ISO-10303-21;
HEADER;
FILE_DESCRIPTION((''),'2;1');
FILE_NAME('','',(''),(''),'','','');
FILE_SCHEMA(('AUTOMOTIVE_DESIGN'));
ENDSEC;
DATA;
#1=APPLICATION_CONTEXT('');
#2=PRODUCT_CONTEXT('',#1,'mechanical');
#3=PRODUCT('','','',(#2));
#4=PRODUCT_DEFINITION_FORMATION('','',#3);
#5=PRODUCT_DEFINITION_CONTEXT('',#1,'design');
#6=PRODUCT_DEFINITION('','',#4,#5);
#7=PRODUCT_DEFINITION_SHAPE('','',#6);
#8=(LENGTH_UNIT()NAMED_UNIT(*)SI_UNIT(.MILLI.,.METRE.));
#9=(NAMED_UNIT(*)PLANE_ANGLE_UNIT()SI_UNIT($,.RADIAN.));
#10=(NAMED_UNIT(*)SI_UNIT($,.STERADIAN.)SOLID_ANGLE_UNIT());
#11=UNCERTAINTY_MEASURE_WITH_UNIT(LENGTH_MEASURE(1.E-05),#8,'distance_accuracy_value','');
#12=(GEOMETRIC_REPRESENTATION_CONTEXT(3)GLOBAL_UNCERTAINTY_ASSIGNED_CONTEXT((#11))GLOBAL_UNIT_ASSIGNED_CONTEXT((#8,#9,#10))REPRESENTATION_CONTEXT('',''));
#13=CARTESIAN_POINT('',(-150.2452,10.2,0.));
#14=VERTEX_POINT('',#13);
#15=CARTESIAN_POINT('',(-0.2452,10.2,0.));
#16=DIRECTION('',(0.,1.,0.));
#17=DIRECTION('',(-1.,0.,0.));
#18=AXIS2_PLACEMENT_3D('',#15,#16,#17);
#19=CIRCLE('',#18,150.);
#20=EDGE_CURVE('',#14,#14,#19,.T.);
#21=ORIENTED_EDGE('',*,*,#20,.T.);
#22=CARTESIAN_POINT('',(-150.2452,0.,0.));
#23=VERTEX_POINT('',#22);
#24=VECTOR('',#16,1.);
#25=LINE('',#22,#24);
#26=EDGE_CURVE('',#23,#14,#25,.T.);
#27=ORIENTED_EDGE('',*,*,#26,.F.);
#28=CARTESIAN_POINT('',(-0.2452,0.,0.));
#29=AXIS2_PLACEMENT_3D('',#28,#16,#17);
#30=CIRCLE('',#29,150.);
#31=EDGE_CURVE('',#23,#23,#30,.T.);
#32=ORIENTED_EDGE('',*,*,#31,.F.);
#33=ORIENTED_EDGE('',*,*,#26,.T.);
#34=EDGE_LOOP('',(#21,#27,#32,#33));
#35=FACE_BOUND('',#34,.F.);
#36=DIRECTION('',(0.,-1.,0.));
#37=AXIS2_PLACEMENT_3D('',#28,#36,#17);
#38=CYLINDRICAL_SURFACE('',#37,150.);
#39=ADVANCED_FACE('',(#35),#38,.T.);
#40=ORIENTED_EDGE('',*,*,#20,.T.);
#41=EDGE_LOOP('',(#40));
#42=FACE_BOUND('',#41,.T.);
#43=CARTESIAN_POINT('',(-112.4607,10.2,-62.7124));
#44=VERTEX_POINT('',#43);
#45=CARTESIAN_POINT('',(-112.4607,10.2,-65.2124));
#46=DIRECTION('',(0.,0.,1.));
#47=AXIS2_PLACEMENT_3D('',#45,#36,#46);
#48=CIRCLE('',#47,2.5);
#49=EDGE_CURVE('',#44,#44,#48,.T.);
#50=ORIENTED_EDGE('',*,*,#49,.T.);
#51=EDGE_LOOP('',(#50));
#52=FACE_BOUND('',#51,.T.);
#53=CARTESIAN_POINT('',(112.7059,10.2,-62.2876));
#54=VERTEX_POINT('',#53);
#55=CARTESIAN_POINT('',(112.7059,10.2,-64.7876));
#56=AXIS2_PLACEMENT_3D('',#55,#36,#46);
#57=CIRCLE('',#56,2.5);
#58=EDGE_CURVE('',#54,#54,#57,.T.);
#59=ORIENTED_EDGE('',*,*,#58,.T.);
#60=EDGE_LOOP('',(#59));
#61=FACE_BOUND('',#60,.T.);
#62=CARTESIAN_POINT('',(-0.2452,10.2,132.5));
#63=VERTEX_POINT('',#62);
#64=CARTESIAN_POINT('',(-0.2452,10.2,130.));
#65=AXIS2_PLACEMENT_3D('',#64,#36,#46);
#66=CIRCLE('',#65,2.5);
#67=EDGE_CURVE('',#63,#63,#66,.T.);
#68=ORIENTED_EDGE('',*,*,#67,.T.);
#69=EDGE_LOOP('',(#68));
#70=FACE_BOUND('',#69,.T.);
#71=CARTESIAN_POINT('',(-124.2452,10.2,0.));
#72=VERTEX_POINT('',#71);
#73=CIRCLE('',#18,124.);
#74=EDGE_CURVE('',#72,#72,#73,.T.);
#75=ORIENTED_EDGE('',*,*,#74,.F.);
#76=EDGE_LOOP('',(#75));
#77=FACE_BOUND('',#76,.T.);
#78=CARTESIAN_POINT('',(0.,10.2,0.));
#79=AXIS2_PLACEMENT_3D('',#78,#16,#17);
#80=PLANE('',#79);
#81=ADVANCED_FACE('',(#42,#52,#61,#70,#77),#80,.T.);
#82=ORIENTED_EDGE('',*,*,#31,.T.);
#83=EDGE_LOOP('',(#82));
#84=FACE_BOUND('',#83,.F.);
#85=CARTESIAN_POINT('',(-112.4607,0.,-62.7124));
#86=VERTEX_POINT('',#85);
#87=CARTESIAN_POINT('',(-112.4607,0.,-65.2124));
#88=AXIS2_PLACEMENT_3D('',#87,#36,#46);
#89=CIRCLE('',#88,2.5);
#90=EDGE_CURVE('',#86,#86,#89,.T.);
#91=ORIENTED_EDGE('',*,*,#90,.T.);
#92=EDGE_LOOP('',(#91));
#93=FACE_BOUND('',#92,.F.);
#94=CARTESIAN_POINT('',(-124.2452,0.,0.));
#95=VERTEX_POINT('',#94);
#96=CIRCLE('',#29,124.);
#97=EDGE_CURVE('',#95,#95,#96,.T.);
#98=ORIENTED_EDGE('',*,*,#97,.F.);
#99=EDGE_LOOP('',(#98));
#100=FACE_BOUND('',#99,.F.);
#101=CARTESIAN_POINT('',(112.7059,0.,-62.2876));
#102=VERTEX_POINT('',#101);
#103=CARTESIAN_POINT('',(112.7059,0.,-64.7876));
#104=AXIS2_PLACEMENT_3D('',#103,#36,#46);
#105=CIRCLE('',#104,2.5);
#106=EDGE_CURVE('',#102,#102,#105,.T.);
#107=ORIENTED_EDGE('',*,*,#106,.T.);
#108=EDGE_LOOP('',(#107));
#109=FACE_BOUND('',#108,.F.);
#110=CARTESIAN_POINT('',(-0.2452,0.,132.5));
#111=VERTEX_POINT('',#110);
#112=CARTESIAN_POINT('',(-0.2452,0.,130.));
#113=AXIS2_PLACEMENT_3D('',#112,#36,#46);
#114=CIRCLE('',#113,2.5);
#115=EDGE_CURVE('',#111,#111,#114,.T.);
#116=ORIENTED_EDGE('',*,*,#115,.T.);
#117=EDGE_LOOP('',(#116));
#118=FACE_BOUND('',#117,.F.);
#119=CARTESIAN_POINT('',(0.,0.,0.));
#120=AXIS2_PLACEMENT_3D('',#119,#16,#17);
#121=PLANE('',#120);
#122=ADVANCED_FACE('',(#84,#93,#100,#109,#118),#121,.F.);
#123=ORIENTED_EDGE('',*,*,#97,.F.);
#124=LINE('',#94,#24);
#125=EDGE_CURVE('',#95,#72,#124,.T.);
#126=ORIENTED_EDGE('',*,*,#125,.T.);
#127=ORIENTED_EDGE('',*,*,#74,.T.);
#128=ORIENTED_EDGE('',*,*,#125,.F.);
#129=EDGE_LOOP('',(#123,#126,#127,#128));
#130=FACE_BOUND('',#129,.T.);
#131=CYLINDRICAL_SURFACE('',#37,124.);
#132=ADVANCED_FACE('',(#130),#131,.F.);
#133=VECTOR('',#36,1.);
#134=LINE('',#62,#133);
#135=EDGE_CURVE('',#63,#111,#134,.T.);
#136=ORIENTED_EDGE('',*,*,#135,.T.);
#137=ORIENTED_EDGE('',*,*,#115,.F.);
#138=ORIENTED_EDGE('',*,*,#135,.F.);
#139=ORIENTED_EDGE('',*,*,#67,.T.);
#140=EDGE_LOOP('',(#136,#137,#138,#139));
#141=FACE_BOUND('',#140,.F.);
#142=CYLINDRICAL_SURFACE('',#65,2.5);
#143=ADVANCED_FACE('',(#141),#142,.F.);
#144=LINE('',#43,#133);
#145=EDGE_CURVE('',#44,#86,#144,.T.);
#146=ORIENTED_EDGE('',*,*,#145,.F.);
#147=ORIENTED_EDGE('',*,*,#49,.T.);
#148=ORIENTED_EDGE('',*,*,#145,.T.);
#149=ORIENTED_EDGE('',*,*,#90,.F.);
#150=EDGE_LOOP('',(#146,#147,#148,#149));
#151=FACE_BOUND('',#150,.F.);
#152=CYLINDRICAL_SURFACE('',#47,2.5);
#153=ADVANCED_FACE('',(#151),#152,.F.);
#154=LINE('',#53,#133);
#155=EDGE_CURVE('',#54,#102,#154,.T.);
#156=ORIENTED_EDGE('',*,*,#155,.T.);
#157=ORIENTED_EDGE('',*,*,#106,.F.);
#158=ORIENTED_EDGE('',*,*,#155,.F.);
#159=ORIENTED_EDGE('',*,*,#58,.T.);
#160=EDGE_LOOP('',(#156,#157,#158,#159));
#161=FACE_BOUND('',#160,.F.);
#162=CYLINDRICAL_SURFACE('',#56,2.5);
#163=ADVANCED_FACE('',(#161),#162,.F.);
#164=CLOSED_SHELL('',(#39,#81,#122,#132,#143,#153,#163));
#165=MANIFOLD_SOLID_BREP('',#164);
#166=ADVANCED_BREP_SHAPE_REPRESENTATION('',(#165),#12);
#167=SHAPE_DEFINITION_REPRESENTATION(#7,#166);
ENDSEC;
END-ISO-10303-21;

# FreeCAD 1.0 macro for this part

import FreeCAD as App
import Part
import Sketcher
from FreeCAD import Vector

doc = App.newDocument("Part")
params = doc.addObject("Spreadsheet::Sheet", "Params")
for row, (alias, value) in enumerate([
    ("sketch1_diameter", "300 mm"),
    ("sketch1_diameter2", "248 mm"),
    ("pad1_length", "10.2 mm"),
    ("sketch2_diameter", "5 mm"),
    ("hole_diameter", "5 mm"),
], start=1):
    params.set(f"A{row}", alias)
    params.set(f"B{row}", "=" + value)
    params.setAlias(f"B{row}", alias)

body = doc.addObject("PartDesign::Body", "Body")

sketch1 = body.newObject("Sketcher::SketchObject", "Sketch")
sketch1.AttachmentSupport = (doc.getObject("XZ_Plane"), [""])
sketch1.MapMode = "FlatFace"
sketch1.addGeometry(Part.Circle(Vector(0, 0, 0), Vector(0, 0, 1), 150), False)
sketch1.addGeometry(Part.Circle(Vector(0, 0, 0), Vector(0, 0, 1), 124), False)
sketch1.addConstraint(Sketcher.Constraint("Coincident", 1, 3, 0, 3))
sketch1.addConstraint(Sketcher.Constraint("PointOnObject", 0, 3, -1))
sketch1.addConstraint(Sketcher.Constraint("Diameter", 0, 300.0))
sketch1.addConstraint(Sketcher.Constraint("Diameter", 1, 248.0))
sketch1.addConstraint(Sketcher.Constraint("DistanceX", 0, 3, -1, 1, 0.2452))
sketch1.setExpression("Constraints[2]", "Params.sketch1_diameter")
sketch1.setExpression("Constraints[3]", "Params.sketch1_diameter2")
pad1 = body.newObject("PartDesign::Pad", "Pad")
pad1.Profile = sketch1
pad1.setExpression("Length", "Params.pad1_length")
pad1.Reversed = True

sketch2 = body.newObject("Sketcher::SketchObject", "Sketch001")
sketch2.AttachmentSupport = (doc.getObject("XZ_Plane"), [""])
sketch2.MapMode = "FlatFace"
sketch2.AttachmentOffset = App.Placement(Vector(0, 0, -10.2), App.Rotation())
sketch2.addGeometry(Part.Circle(Vector(-0.2, 130, 0), Vector(0, 0, 1), 2.5), False)
sketch2.addGeometry(Part.Circle(Vector(112.7, -64.8, 0), Vector(0, 0, 1), 2.5), False)
sketch2.addGeometry(Part.Circle(Vector(-112.5, -65.2, 0), Vector(0, 0, 1), 2.5), False)
sketch2.addConstraint(Sketcher.Constraint("Equal", 0, 1))
sketch2.addConstraint(Sketcher.Constraint("Equal", 1, 2))
sketch2.addConstraint(Sketcher.Constraint("Diameter", 0, 5.0))
sketch2.addConstraint(Sketcher.Constraint("DistanceY", -1, 1, 0, 3, 130.0))
sketch2.addConstraint(Sketcher.Constraint("DistanceX", -1, 1, 1, 3, 112.706))
sketch2.addConstraint(Sketcher.Constraint("DistanceX", 0, 3, 1, 3, 112.951))
sketch2.addConstraint(Sketcher.Constraint("DistanceY", 1, 3, -1, 1, 64.7876))
sketch2.addConstraint(Sketcher.Constraint("DistanceX", 2, 3, -1, 1, 112.4607))
sketch2.addConstraint(Sketcher.Constraint("DistanceY", 2, 3, -1, 1, 65.2124))
sketch2.setExpression("Constraints[2]", "Params.sketch2_diameter")
doc.recompute()
hole = body.newObject("PartDesign::Hole", "Hole")
hole.Profile = sketch2
hole.ThreadType = "None"
hole.setExpression("Diameter", "Params.hole_diameter")
hole.DepthType = "ThroughAll"
hole.Reversed = True

doc.recompute()
